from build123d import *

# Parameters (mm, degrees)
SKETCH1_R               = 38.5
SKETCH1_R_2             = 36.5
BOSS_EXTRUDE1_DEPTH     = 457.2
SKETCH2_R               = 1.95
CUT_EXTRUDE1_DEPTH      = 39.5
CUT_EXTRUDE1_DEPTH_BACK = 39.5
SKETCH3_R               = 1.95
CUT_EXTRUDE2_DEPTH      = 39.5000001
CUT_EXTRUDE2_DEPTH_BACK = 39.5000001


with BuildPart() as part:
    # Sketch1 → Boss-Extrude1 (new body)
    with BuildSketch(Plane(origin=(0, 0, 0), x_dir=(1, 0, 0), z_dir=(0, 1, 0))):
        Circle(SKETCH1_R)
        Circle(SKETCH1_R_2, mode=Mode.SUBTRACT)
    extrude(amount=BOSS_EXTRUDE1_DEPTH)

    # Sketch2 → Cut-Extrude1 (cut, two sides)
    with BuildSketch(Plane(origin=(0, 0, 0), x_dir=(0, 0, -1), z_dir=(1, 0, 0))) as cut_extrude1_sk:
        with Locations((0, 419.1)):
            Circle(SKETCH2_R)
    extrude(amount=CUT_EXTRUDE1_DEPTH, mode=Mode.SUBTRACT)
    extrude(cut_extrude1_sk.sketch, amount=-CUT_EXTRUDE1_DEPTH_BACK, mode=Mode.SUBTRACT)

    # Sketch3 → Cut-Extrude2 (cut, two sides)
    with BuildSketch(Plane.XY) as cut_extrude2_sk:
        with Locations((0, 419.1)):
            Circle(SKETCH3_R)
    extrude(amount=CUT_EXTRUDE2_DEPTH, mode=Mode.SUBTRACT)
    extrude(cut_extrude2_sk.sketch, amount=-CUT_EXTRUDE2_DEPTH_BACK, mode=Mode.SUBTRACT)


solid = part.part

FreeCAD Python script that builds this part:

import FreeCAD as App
import Part
import Sketcher
from FreeCAD import Vector
Q = App.Units.Quantity

doc = App.newDocument("Part")
body = doc.addObject("PartDesign::Body", "Body")

# Sketch on XZ plane
sketch1 = body.newObject("Sketcher::SketchObject", "Sketch")
sketch1.AttachmentSupport = (doc.getObject("XZ_Plane"), [""])
sketch1.MapMode = "FlatFace"
sketch1.addGeometry(Part.Circle(Vector(0, 0, 0), Vector(0, 0, 1), 38), False)
sketch1.addGeometry(Part.Circle(Vector(0, 0, 0), Vector(0, 0, 1), 36), False)
sketch1.addConstraint(Sketcher.Constraint("Coincident", 0, 3, -1, 1))
sketch1.addConstraint(Sketcher.Constraint("Coincident", 1, 3, -1, 1))
sketch1.addConstraint(Sketcher.Constraint("Diameter", 0, Q("77 mm")))
sketch1.addConstraint(Sketcher.Constraint("Diameter", 1, Q("73 mm")))
pad1 = body.newObject("PartDesign::Pad", "Pad")
pad1.Profile = sketch1
pad1.Length = 457.2
pad1.Reversed = True

# Sketch on YZ plane
sketch2 = body.newObject("Sketcher::SketchObject", "Sketch001")
sketch2.AttachmentSupport = (doc.getObject("YZ_Plane"), [""])
sketch2.MapMode = "FlatFace"
sketch2.addGeometry(Part.Circle(Vector(419.1, 0, 0), Vector(0, 0, 1), 1.9), False)
sketch2.addConstraint(Sketcher.Constraint("PointOnObject", 0, 3, -1))
sketch2.addConstraint(Sketcher.Constraint("Diameter", 0, Q("3.9 mm")))
sketch2.addConstraint(Sketcher.Constraint("DistanceX", -1, 1, 0, 3, Q("419.1 mm")))
pocket1 = body.newObject("PartDesign::Pocket", "Pocket")
pocket1.Profile = sketch2
pocket1.Type = "ThroughAll"
pocket1.Midplane = True

# Sketch on XY plane
sketch3 = body.newObject("Sketcher::SketchObject", "Sketch002")
sketch3.AttachmentSupport = (doc.getObject("XY_Plane"), [""])
sketch3.MapMode = "FlatFace"
sketch3.addGeometry(Part.Circle(Vector(0, 419.1, 0), Vector(0, 0, 1), 1.9), False)
sketch3.addConstraint(Sketcher.Constraint("PointOnObject", 0, 3, -2))
sketch3.addConstraint(Sketcher.Constraint("Diameter", 0, Q("3.9 mm")))
sketch3.addConstraint(Sketcher.Constraint("DistanceY", -1, 1, 0, 3, Q("419.1 mm")))
pocket2 = body.newObject("PartDesign::Pocket", "Pocket001")
pocket2.Profile = sketch3
pocket2.Type = "ThroughAll"
pocket2.Midplane = True

doc.recompute()
